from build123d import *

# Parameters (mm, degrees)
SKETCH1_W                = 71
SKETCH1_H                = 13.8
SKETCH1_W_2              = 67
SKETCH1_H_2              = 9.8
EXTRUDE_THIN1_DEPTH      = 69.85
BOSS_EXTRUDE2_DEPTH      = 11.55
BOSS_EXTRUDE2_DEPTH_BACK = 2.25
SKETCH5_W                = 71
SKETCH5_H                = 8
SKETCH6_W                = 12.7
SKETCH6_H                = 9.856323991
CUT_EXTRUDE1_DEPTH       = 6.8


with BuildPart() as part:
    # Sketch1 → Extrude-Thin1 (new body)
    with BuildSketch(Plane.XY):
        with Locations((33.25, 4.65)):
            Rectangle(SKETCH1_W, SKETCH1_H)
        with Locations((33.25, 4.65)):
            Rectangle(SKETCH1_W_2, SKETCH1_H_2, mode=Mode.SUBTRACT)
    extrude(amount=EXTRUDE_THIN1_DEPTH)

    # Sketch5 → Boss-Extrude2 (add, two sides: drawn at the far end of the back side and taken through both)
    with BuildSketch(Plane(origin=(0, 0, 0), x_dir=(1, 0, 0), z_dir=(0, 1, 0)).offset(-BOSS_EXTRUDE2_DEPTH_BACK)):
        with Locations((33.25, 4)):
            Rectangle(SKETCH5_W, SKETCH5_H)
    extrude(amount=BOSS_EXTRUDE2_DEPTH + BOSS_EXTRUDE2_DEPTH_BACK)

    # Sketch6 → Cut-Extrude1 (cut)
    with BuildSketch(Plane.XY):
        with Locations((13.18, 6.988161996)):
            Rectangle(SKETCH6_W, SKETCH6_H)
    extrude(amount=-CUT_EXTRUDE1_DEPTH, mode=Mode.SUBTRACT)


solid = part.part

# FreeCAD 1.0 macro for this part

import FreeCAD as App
import Part
import Sketcher
from FreeCAD import Vector

doc = App.newDocument("Part")
body = doc.addObject("PartDesign::Body", "Body")

sketch1 = body.newObject("Sketcher::SketchObject", "Sketch")
sketch1.AttachmentSupport = (doc.getObject("XY_Plane"), [""])
sketch1.MapMode = "FlatFace"
sketch1.addGeometry([
    Part.LineSegment(Vector(-2, 12, 0), Vector(-2, -2, 0)),
    Part.LineSegment(Vector(-2, -2, 0), Vector(69, -2, 0)),
    Part.LineSegment(Vector(69, -2, 0), Vector(69, 12, 0)),
    Part.LineSegment(Vector(69, 12, 0), Vector(-2, 12, 0)),
    Part.LineSegment(Vector(67, 0, 0), Vector(0, 0, 0)),
    Part.LineSegment(Vector(0, 0, 0), Vector(0, 10, 0)),
    Part.LineSegment(Vector(0, 10, 0), Vector(67, 10, 0)),
    Part.LineSegment(Vector(67, 10, 0), Vector(67, 0, 0)),
], False)
sketch1.addConstraint([
    Sketcher.Constraint("Coincident", 0, 2, 1, 1),
    Sketcher.Constraint("Coincident", 1, 2, 2, 1),
    Sketcher.Constraint("Coincident", 2, 2, 3, 1),
    Sketcher.Constraint("Coincident", 3, 2, 0, 1),
    Sketcher.Constraint("Coincident", 4, 2, 5, 1),
    Sketcher.Constraint("Coincident", 5, 2, 6, 1),
    Sketcher.Constraint("Coincident", 6, 2, 7, 1),
    Sketcher.Constraint("Coincident", 7, 2, 4, 1),
    Sketcher.Constraint("Vertical", 0),
    Sketcher.Constraint("Horizontal", 1),
    Sketcher.Constraint("Vertical", 2),
    Sketcher.Constraint("Horizontal", 3),
    Sketcher.Constraint("Horizontal", 4),
    Sketcher.Constraint("Vertical", 5),
    Sketcher.Constraint("Horizontal", 6),
    Sketcher.Constraint("Vertical", 7),
    Sketcher.Constraint("DistanceX", 1, 1, 1, 2, 71.0),
    Sketcher.Constraint("DistanceX", 4, 2, 4, 1, 67.0),
    Sketcher.Constraint("DistanceY", 0, 2, 0, 1, 13.8),
    Sketcher.Constraint("DistanceY", 5, 1, 5, 2, 9.8),
    Sketcher.Constraint("DistanceX", 0, 2, 4, 2, 2.0),
    Sketcher.Constraint("DistanceY", 0, 2, 4, 2, 2.0),
    Sketcher.Constraint("DistanceX", 0, 2, -1, 1, 2.25),
    Sketcher.Constraint("DistanceY", 0, 2, -1, 1, 2.25),
])
pad1 = body.newObject("PartDesign::Pad", "Pad")
pad1.Profile = sketch1
pad1.Length = 69.85

sketch2 = body.newObject("Sketcher::SketchObject", "Sketch001")
sketch2.AttachmentSupport = (doc.getObject("XZ_Plane"), [""])
sketch2.MapMode = "FlatFace"
sketch2.addGeometry([
    Part.LineSegment(Vector(-2, -8, 0), Vector(-2, 0, 0)),
    Part.LineSegment(Vector(-2, 0, 0), Vector(69, 0, 0)),
    Part.LineSegment(Vector(69, 0, 0), Vector(69, -8, 0)),
    Part.LineSegment(Vector(69, -8, 0), Vector(-2, -8, 0)),
], False)
sketch2.addConstraint([
    Sketcher.Constraint("Coincident", 0, 2, 1, 1),
    Sketcher.Constraint("Coincident", 1, 2, 2, 1),
    Sketcher.Constraint("Coincident", 2, 2, 3, 1),
    Sketcher.Constraint("Coincident", 3, 2, 0, 1),
    Sketcher.Constraint("Vertical", 0),
    Sketcher.Constraint("Horizontal", 1),
    Sketcher.Constraint("Vertical", 2),
    Sketcher.Constraint("Horizontal", 3),
    Sketcher.Constraint("PointOnObject", 0, 2, -1),
    Sketcher.Constraint("DistanceX", 1, 1, 1, 2, 71.0),
    Sketcher.Constraint("DistanceY", 0, 1, 0, 2, 8.0),
    Sketcher.Constraint("DistanceX", 0, 2, -1, 1, 2.25),
])
pad2 = body.newObject("PartDesign::Pad", "Pad001")
pad2.Profile = sketch2
pad2.Type = "TwoLengths"
pad2.Length = 11.55
pad2.Length2 = 2.25
pad2.Reversed = True

sketch3 = body.newObject("Sketcher::SketchObject", "Sketch002")
sketch3.AttachmentSupport = (doc.getObject("XY_Plane"), [""])
sketch3.MapMode = "FlatFace"
sketch3.addGeometry([
    Part.LineSegment(Vector(7, 12, 0), Vector(7, 2, 0)),
    Part.LineSegment(Vector(7, 2, 0), Vector(20, 2, 0)),
    Part.LineSegment(Vector(20, 2, 0), Vector(20, 12, 0)),
    Part.LineSegment(Vector(20, 12, 0), Vector(7, 12, 0)),
], False)
sketch3.addConstraint([
    Sketcher.Constraint("Coincident", 0, 2, 1, 1),
    Sketcher.Constraint("Coincident", 1, 2, 2, 1),
    Sketcher.Constraint("Coincident", 2, 2, 3, 1),
    Sketcher.Constraint("Coincident", 3, 2, 0, 1),
    Sketcher.Constraint("Vertical", 0),
    Sketcher.Constraint("Horizontal", 1),
    Sketcher.Constraint("Vertical", 2),
    Sketcher.Constraint("Horizontal", 3),
    Sketcher.Constraint("DistanceX", 1, 1, 1, 2, 12.7),
    Sketcher.Constraint("DistanceX", -1, 1, 0, 2, 6.83),
    Sketcher.Constraint("DistanceY", -1, 1, 0, 2, 2.06),
    Sketcher.Constraint("DistanceY", 0, 2, 0, 1, 9.856324),
])
pocket1 = body.newObject("PartDesign::Pocket", "Pocket")
pocket1.Profile = sketch3
pocket1.Length = 6.8

doc.recompute()
